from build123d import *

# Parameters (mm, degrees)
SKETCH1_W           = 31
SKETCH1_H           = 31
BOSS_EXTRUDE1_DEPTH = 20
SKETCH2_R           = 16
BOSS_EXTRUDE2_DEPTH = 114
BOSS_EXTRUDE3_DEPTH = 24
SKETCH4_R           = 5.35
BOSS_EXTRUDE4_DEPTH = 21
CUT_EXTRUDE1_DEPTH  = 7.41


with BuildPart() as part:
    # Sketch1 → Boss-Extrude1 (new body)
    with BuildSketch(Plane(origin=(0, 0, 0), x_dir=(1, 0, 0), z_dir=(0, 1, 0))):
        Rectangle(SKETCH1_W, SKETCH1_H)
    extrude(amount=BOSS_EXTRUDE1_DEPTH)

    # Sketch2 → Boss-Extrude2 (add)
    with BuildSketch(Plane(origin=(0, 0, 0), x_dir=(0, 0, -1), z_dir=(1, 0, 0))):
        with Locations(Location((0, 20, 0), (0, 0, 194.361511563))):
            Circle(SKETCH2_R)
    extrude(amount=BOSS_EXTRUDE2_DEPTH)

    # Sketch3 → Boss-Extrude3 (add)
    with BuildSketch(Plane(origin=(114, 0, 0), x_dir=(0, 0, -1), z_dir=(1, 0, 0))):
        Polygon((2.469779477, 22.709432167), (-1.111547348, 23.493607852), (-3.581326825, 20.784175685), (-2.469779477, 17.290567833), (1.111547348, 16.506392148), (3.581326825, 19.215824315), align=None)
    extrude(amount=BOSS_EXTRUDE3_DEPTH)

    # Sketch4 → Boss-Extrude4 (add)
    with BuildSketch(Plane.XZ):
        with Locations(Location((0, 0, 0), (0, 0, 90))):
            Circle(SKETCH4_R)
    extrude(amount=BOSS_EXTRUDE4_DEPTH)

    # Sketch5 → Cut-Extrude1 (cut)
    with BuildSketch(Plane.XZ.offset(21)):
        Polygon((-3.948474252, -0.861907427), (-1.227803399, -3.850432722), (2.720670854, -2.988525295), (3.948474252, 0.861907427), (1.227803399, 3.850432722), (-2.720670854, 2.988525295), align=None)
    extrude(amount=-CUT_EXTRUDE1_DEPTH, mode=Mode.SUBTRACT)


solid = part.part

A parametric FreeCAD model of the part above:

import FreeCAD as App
import Part
import Sketcher

doc = App.newDocument("Part")
body = doc.addObject("PartDesign::Body", "Body")

# Sketch on XZ plane
sketch1 = body.newObject("Sketcher::SketchObject", "Sketch")
sketch1.AttachmentSupport = (doc.getObject("XZ_Plane"), [""])
sketch1.MapMode = "FlatFace"
sketch1.addGeometry(Part.LineSegment(App.Vector(-16, -16, 0), App.Vector(-16, 16, 0)), False)
sketch1.addGeometry(Part.LineSegment(App.Vector(-16, 16, 0), App.Vector(16, 16, 0)), False)
sketch1.addGeometry(Part.LineSegment(App.Vector(16, 16, 0), App.Vector(16, -16, 0)), False)
sketch1.addGeometry(Part.LineSegment(App.Vector(16, -16, 0), App.Vector(-16, -16, 0)), False)
sketch1.addConstraint(Sketcher.Constraint("Coincident", 0, 2, 1, 1))
sketch1.addConstraint(Sketcher.Constraint("Coincident", 1, 2, 2, 1))
sketch1.addConstraint(Sketcher.Constraint("Coincident", 2, 2, 3, 1))
sketch1.addConstraint(Sketcher.Constraint("Coincident", 3, 2, 0, 1))
sketch1.addConstraint(Sketcher.Constraint("Vertical", 0))
sketch1.addConstraint(Sketcher.Constraint("Horizontal", 1))
sketch1.addConstraint(Sketcher.Constraint("Vertical", 2))
sketch1.addConstraint(Sketcher.Constraint("Horizontal", 3))
sketch1.addConstraint(Sketcher.Constraint("Symmetric", 0, 2, 2, 2, -1, 1))
sketch1.addConstraint(Sketcher.Constraint("Equal", 3, 0))
sketch1.addConstraint(Sketcher.Constraint("DistanceX", 1, 1, 1, 2, 31.0))
pad1 = body.newObject("PartDesign::Pad", "Pad")
pad1.Profile = sketch1
pad1.Length = 20
pad1.Reversed = True

# Sketch on YZ plane
sketch2 = body.newObject("Sketcher::SketchObject", "Sketch001")
sketch2.AttachmentSupport = (doc.getObject("YZ_Plane"), [""])
sketch2.MapMode = "FlatFace"
sketch2.addGeometry(Part.Circle(App.Vector(20, 0, 0), App.Vector(0, 0, 1), 16), False)
sketch2.addConstraint(Sketcher.Constraint("PointOnObject", 0, 3, -1))
sketch2.addConstraint(Sketcher.Constraint("Diameter", 0, 32.0))
sketch2.addConstraint(Sketcher.Constraint("DistanceX", -1, 1, 0, 3, 20.0))
pad2 = body.newObject("PartDesign::Pad", "Pad001")
pad2.Profile = sketch2
pad2.Length = 114

# Sketch on YZ plane
sketch3 = body.newObject("Sketcher::SketchObject", "Sketch002")
sketch3.AttachmentSupport = (doc.getObject("YZ_Plane"), [""])
sketch3.MapMode = "FlatFace"
sketch3.AttachmentOffset = App.Placement(App.Vector(0, 0, 114), App.Rotation())
sketch3.addGeometry(Part.LineSegment(App.Vector(22.7, -2.5, 0), App.Vector(23.5, 1.1, 0)), False)
sketch3.addGeometry(Part.LineSegment(App.Vector(23.5, 1.1, 0), App.Vector(20.8, 3.6, 0)), False)
sketch3.addGeometry(Part.LineSegment(App.Vector(20.8, 3.6, 0), App.Vector(17.3, 2.5, 0)), False)
sketch3.addGeometry(Part.LineSegment(App.Vector(17.3, 2.5, 0), App.Vector(16.5, -1.1, 0)), False)
sketch3.addGeometry(Part.LineSegment(App.Vector(16.5, -1.1, 0), App.Vector(19.2, -3.6, 0)), False)
sketch3.addGeometry(Part.LineSegment(App.Vector(19.2, -3.6, 0), App.Vector(22.7, -2.5, 0)), False)
sketch3.addConstraint(Sketcher.Constraint("Coincident", 0, 2, 1, 1))
sketch3.addConstraint(Sketcher.Constraint("Coincident", 1, 2, 2, 1))
sketch3.addConstraint(Sketcher.Constraint("Coincident", 2, 2, 3, 1))
sketch3.addConstraint(Sketcher.Constraint("Coincident", 3, 2, 4, 1))
sketch3.addConstraint(Sketcher.Constraint("Coincident", 4, 2, 5, 1))
sketch3.addConstraint(Sketcher.Constraint("Coincident", 5, 2, 0, 1))
sketch3.addConstraint(Sketcher.Constraint("Parallel", 0, 3))
sketch3.addConstraint(Sketcher.Constraint("Parallel", 1, 4))
sketch3.addConstraint(Sketcher.Constraint("Parallel", 2, 5))
sketch3.addConstraint(Sketcher.Constraint("Equal", 0, 1))
sketch3.addConstraint(Sketcher.Constraint("Equal", 1, 2))
sketch3.addConstraint(Sketcher.Constraint("Equal", 2, 3))
sketch3.addConstraint(Sketcher.Constraint("DistanceY", -1, 1, 2, 2, 2.469779))
sketch3.addConstraint(Sketcher.Constraint("DistanceY", 5, 2, -1, 1, 2.469779))
sketch3.addConstraint(Sketcher.Constraint("DistanceY", 0, 2, 1, 2, 2.469779))
sketch3.addConstraint(Sketcher.Constraint("DistanceX", 2, 2, 0, 2, 6.20304))
sketch3.addConstraint(Sketcher.Constraint("DistanceX", 4, 2, 1, 2, 1.568351))
sketch3.addConstraint(Sketcher.Constraint("DistanceX", -1, 1, 0, 2, 23.493608))
pad3 = body.newObject("PartDesign::Pad", "Pad002")
pad3.Profile = sketch3
pad3.Length = 24

# Sketch on XZ plane
sketch4 = body.newObject("Sketcher::SketchObject", "Sketch003")
sketch4.AttachmentSupport = (doc.getObject("XZ_Plane"), [""])
sketch4.MapMode = "FlatFace"
sketch4.addGeometry(Part.Circle(App.Vector(0, 0, 0), App.Vector(0, 0, 1), 5), False)
sketch4.addConstraint(Sketcher.Constraint("Coincident", 0, 3, -1, 1))
sketch4.addConstraint(Sketcher.Constraint("Diameter", 0, 10.7))
pad4 = body.newObject("PartDesign::Pad", "Pad003")
pad4.Profile = sketch4
pad4.Length = 21

# Sketch on XZ plane
sketch5 = body.newObject("Sketcher::SketchObject", "Sketch004")
sketch5.AttachmentSupport = (doc.getObject("XZ_Plane"), [""])
sketch5.MapMode = "FlatFace"
sketch5.AttachmentOffset = App.Placement(App.Vector(0, 0, 21), App.Rotation())
sketch5.addGeometry(Part.LineSegment(App.Vector(-3.9, -0.9, 0), App.Vector(-1.2, -3.9, 0)), False)
sketch5.addGeometry(Part.LineSegment(App.Vector(-1.2, -3.9, 0), App.Vector(2.7, -3, 0)), False)
sketch5.addGeometry(Part.LineSegment(App.Vector(2.7, -3, 0), App.Vector(3.9, 0.9, 0)), False)
sketch5.addGeometry(Part.LineSegment(App.Vector(3.9, 0.9, 0), App.Vector(1.2, 3.9, 0)), False)
sketch5.addGeometry(Part.LineSegment(App.Vector(1.2, 3.9, 0), App.Vector(-2.7, 3, 0)), False)
sketch5.addGeometry(Part.LineSegment(App.Vector(-2.7, 3, 0), App.Vector(-3.9, -0.9, 0)), False)
sketch5.addConstraint(Sketcher.Constraint("Coincident", 0, 2, 1, 1))
sketch5.addConstraint(Sketcher.Constraint("Coincident", 1, 2, 2, 1))
sketch5.addConstraint(Sketcher.Constraint("Coincident", 2, 2, 3, 1))
sketch5.addConstraint(Sketcher.Constraint("Coincident", 3, 2, 4, 1))
sketch5.addConstraint(Sketcher.Constraint("Coincident", 4, 2, 5, 1))
sketch5.addConstraint(Sketcher.Constraint("Coincident", 5, 2, 0, 1))
sketch5.addConstraint(Sketcher.Constraint("Symmetric", 0, 2, 3, 2, -1, 1))
sketch5.addConstraint(Sketcher.Constraint("Symmetric", 1, 2, 4, 2, -1, 1))
sketch5.addConstraint(Sketcher.Constraint("Symmetric", 2, 2, 5, 2, -1, 1))
sketch5.addConstraint(Sketcher.Constraint("Equal", 0, 1))
sketch5.addConstraint(Sketcher.Constraint("Equal", 1, 2))
sketch5.addConstraint(Sketcher.Constraint("Distance", 0, 4.041452))
sketch5.addConstraint(Sketcher.Constraint("DistanceX", -1, 1, 1, 2, 2.720671))
sketch5.addConstraint(Sketcher.Constraint("DistanceY", 0, 2, 2, 2, 4.71234))
sketch5.addConstraint(Sketcher.Constraint("DistanceX", 3, 2, 2, 2, 2.720671))
pocket1 = body.newObject("PartDesign::Pocket", "Pocket")
pocket1.Profile = sketch5
pocket1.Length = 7.41

doc.recompute()
